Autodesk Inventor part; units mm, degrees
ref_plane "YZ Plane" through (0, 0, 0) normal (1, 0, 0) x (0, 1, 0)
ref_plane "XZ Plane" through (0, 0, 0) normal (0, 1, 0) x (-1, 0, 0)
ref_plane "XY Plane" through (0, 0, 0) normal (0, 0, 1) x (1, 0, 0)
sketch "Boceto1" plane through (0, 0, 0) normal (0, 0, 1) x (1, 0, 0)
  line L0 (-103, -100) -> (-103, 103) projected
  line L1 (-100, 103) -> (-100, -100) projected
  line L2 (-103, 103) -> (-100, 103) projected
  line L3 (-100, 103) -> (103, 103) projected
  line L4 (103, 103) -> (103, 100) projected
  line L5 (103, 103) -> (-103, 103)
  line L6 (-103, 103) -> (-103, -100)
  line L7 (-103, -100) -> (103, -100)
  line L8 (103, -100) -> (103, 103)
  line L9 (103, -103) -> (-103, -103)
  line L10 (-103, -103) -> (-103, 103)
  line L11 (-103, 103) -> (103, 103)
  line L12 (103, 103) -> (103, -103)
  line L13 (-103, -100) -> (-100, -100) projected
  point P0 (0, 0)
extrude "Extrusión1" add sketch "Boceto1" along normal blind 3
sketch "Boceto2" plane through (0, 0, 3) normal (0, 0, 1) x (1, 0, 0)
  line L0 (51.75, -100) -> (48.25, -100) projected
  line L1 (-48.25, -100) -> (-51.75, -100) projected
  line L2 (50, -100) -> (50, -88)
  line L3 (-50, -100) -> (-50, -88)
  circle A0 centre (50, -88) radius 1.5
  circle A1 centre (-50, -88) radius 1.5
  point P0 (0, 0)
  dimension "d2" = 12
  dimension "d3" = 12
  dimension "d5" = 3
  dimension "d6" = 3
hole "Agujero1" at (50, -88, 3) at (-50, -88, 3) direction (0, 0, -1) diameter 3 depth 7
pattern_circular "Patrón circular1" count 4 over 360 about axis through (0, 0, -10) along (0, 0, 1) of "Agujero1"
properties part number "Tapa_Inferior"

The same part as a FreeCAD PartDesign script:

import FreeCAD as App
import Part
import Sketcher

V = App.Vector
Q = App.Units.Quantity


def add_polygon(sketch, points):
    """Adds a closed chain of lines whose ends are joined by coincident constraints."""
    first, n = sketch.GeometryCount, len(points)
    for a, b in zip(points, points[1:] + points[:1]):
        sketch.addGeometry(Part.LineSegment(App.Vector(*a, 0), App.Vector(*b, 0)), False)
    for i in range(n):
        sketch.addConstraint(Sketcher.Constraint("Coincident", first + i, 2, first + (i + 1) % n, 1))

doc = App.newDocument("Part")
body = doc.addObject("PartDesign::Body", "Body")

# Sketch on XY plane
sketch1 = body.newObject("Sketcher::SketchObject", "Sketch")
sketch1.AttachmentSupport = (doc.getObject("XY_Plane"), [""])
sketch1.MapMode = "FlatFace"
add_polygon(sketch1, [(-103, 103), (-103, -103), (103, -103), (103, 103)])  # lines 0-3
sketch1.addConstraint(Sketcher.Constraint("Vertical", 0))
sketch1.addConstraint(Sketcher.Constraint("Horizontal", 1))
sketch1.addConstraint(Sketcher.Constraint("Vertical", 2))
sketch1.addConstraint(Sketcher.Constraint("Horizontal", 3))
sketch1.addConstraint(Sketcher.Constraint("Symmetric", 0, 2, 2, 2, -1, 1))
sketch1.addConstraint(Sketcher.Constraint("Equal", 3, 0))
sketch1.addConstraint(Sketcher.Constraint("DistanceX", 1, 1, 1, 2, Q("206 mm")))
pad1 = body.newObject("PartDesign::Pad", "Pad")
pad1.Profile = sketch1
pad1.Length = 3

# Sketch on XY plane
sketch2 = body.newObject("Sketcher::SketchObject", "Sketch001")
sketch2.AttachmentSupport = (doc.getObject("XY_Plane"), [""])
sketch2.MapMode = "FlatFace"
sketch2.AttachmentOffset = App.Placement(V(0, 0, 3), App.Rotation())
sketch2.addGeometry(Part.Circle(V(50, -88, 0), V(0, 0, 1), 1.5), False)
sketch2.addGeometry(Part.Circle(V(-50, -88, 0), V(0, 0, 1), 1.5), False)
sketch2.addConstraint(Sketcher.Constraint("Equal", 0, 1))
sketch2.addConstraint(Sketcher.Constraint("Symmetric", 0, 3, 1, 3, -2))
sketch2.addConstraint(Sketcher.Constraint("Diameter", 0, Q("3 mm")))
sketch2.addConstraint(Sketcher.Constraint("DistanceX", -1, 1, 0, 3, Q("50 mm")))
sketch2.addConstraint(Sketcher.Constraint("DistanceY", 0, 3, -1, 1, Q("88 mm")))
doc.recompute()
hole = body.newObject("PartDesign::Hole", "Hole")
hole.Profile = sketch2
hole.ThreadType = "None"
hole.Diameter = 3
hole.DepthType = "Dimension"
hole.Depth = 7
hole.DrillPoint = "Flat"
doc.recompute()

polarpattern = body.newObject("PartDesign::PolarPattern", "PolarPattern")
polarpattern.Originals = [hole]
polarpattern.Axis = (doc.getObject("Z_Axis"), [""])
polarpattern.Angle = 360
polarpattern.Occurrences = 4
body.Tip = polarpattern

doc.recompute()
